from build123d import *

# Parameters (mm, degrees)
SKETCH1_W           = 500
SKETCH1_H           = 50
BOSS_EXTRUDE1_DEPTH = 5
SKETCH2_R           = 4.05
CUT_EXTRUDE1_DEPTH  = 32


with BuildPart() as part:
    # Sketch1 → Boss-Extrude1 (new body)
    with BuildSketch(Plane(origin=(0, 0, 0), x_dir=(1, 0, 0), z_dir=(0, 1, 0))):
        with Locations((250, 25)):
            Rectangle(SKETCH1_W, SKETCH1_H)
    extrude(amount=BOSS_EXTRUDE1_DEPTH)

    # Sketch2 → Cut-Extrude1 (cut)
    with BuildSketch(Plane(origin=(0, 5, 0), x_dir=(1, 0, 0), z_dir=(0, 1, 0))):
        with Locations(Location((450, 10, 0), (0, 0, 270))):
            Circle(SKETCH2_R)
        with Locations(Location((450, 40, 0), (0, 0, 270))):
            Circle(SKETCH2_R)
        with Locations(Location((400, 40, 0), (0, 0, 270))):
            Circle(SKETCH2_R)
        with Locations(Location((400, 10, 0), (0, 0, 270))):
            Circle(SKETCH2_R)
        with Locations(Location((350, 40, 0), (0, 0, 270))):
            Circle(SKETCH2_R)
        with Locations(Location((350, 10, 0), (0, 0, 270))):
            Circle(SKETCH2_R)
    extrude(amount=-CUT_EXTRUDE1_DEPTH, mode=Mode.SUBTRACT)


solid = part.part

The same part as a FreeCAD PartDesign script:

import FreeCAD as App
import Part
import Sketcher


def add_polygon(sketch, points):
    """Adds a closed chain of lines whose ends are joined by coincident constraints."""
    first, n = sketch.GeometryCount, len(points)
    for a, b in zip(points, points[1:] + points[:1]):
        sketch.addGeometry(Part.LineSegment(App.Vector(*a, 0), App.Vector(*b, 0)), False)
    for i in range(n):
        sketch.addConstraint(Sketcher.Constraint("Coincident", first + i, 2, first + (i + 1) % n, 1))

doc = App.newDocument("Part")
body = doc.addObject("PartDesign::Body", "Body")

# Sketch on XZ plane
sketch1 = doc.addObject("Sketcher::SketchObject", "Sketch")
body.addObject(sketch1)
sketch1.AttachmentSupport = (doc.XZ_Plane, [""])
sketch1.MapMode = "FlatFace"
add_polygon(sketch1, [(0, -50), (0, 0), (500, 0), (500, -50)])  # lines 0-3
sketch1.addConstraint([
    Sketcher.Constraint("Vertical", 0),
    Sketcher.Constraint("Horizontal", 1),
    Sketcher.Constraint("Vertical", 2),
    Sketcher.Constraint("Horizontal", 3),
    Sketcher.Constraint("Coincident", 0, 2, -1, 1),
    Sketcher.Constraint("DistanceX", 1, 1, 1, 2, 500.0),
    Sketcher.Constraint("DistanceY", 0, 1, 0, 2, 50.0),
])
pad1 = doc.addObject("PartDesign::Pad", "Pad")
body.addObject(pad1)
pad1.Profile = sketch1
pad1.Length = 5
pad1.Reversed = True

# Sketch on XZ plane
sketch2 = doc.addObject("Sketcher::SketchObject", "Sketch001")
body.addObject(sketch2)
sketch2.AttachmentSupport = (doc.XZ_Plane, [""])
sketch2.MapMode = "FlatFace"
sketch2.AttachmentOffset = App.Placement(App.Vector(0, 0, -5), App.Rotation())
sketch2.addGeometry([
    Part.Circle(App.Vector(450, -10, 0), App.Vector(0, 0, 1), 4),  # 0
    Part.Circle(App.Vector(450, -40, 0), App.Vector(0, 0, 1), 4),  # 1
    Part.Circle(App.Vector(400, -40, 0), App.Vector(0, 0, 1), 4),  # 2
    Part.Circle(App.Vector(400, -10, 0), App.Vector(0, 0, 1), 4),  # 3
    Part.Circle(App.Vector(350, -40, 0), App.Vector(0, 0, 1), 4),  # 4
    Part.Circle(App.Vector(350, -10, 0), App.Vector(0, 0, 1), 4),  # 5
], False)
sketch2.addConstraint([
    Sketcher.Constraint("Equal", 0, 1),
    Sketcher.Constraint("Equal", 1, 2),
    Sketcher.Constraint("Equal", 2, 3),
    Sketcher.Constraint("Equal", 3, 4),
    Sketcher.Constraint("Equal", 4, 5),
    Sketcher.Constraint("Horizontal", 1, 3, 2, 3),
    Sketcher.Constraint("Horizontal", 0, 3, 3, 3),
    Sketcher.Constraint("Horizontal", 2, 3, 4, 3),
    Sketcher.Constraint("Horizontal", 3, 3, 5, 3),
    Sketcher.Constraint("Vertical", 0, 3, 1, 3),
    Sketcher.Constraint("Vertical", 2, 3, 3, 3),
    Sketcher.Constraint("Vertical", 4, 3, 5, 3),
    Sketcher.Constraint("Diameter", 0, 8.1),
    Sketcher.Constraint("DistanceX", -1, 1, 0, 3, 450.0),
    Sketcher.Constraint("DistanceY", 0, 3, -1, 1, 10.0),
    Sketcher.Constraint("DistanceY", 1, 3, -1, 1, 40.0),
    Sketcher.Constraint("DistanceX", -1, 1, 2, 3, 400.0),
    Sketcher.Constraint("DistanceX", -1, 1, 4, 3, 350.0),
])
pocket1 = doc.addObject("PartDesign::Pocket", "Pocket")
body.addObject(pocket1)
pocket1.Profile = sketch2
pocket1.Length = 32
pocket1.Reversed = True

doc.recompute()
